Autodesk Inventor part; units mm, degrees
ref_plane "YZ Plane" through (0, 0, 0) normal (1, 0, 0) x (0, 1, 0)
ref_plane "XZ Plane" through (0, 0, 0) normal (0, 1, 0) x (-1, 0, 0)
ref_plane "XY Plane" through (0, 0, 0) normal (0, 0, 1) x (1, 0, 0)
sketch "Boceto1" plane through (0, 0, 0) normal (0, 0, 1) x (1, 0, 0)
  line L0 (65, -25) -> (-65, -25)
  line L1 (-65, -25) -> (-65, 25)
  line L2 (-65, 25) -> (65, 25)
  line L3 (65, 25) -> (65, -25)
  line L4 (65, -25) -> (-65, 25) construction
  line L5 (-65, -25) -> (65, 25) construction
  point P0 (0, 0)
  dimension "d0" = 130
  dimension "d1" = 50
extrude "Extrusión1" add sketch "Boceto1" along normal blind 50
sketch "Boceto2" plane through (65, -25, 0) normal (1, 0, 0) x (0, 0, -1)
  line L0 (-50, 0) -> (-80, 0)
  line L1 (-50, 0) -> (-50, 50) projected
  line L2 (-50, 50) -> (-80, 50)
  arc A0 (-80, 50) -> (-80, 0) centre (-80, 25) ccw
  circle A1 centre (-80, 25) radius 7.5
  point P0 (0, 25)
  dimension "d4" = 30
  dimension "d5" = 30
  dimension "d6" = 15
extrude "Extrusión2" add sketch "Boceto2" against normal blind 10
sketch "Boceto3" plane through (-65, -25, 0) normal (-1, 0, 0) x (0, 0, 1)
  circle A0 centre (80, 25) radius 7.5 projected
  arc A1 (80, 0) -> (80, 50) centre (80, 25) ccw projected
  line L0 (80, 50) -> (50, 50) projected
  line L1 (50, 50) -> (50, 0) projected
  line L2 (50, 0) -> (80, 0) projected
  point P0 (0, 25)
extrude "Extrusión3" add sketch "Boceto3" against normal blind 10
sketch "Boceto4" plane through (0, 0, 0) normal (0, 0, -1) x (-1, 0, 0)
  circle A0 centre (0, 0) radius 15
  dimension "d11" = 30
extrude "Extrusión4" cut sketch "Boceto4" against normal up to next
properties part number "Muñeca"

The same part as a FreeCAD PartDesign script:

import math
import FreeCAD as App
import Part
import Sketcher

doc = App.newDocument("Part")
body = doc.addObject("PartDesign::Body", "Body")

# Sketch on XY plane
sketch1 = body.newObject("Sketcher::SketchObject", "Sketch")
sketch1.AttachmentSupport = (doc.getObject("XY_Plane"), [""])
sketch1.MapMode = "FlatFace"
sketch1.addGeometry([
    Part.LineSegment(App.Vector(-65, -25, 0), App.Vector(65, -25, 0)),
    Part.LineSegment(App.Vector(65, -25, 0), App.Vector(65, 25, 0)),
    Part.LineSegment(App.Vector(65, 25, 0), App.Vector(-65, 25, 0)),
    Part.LineSegment(App.Vector(-65, 25, 0), App.Vector(-65, -25, 0)),
], False)
sketch1.addConstraint([
    Sketcher.Constraint("Coincident", 0, 2, 1, 1),
    Sketcher.Constraint("Coincident", 1, 2, 2, 1),
    Sketcher.Constraint("Coincident", 2, 2, 3, 1),
    Sketcher.Constraint("Coincident", 3, 2, 0, 1),
    Sketcher.Constraint("Horizontal", 0),
    Sketcher.Constraint("Vertical", 1),
    Sketcher.Constraint("Horizontal", 2),
    Sketcher.Constraint("Vertical", 3),
    Sketcher.Constraint("Symmetric", 0, 2, 2, 2, -1, 1),
    Sketcher.Constraint("DistanceX", 0, 1, 0, 2, 130.0),
    Sketcher.Constraint("DistanceY", 1, 1, 1, 2, 50.0),
])
pad1 = body.newObject("PartDesign::Pad", "Pad")
pad1.Profile = sketch1
pad1.Length = 50

# Sketch on YZ plane
sketch2 = body.newObject("Sketcher::SketchObject", "Sketch001")
sketch2.AttachmentSupport = (doc.getObject("YZ_Plane"), [""])
sketch2.MapMode = "FlatFace"
sketch2.AttachmentOffset = App.Placement(App.Vector(0, 0, 65), App.Rotation())
sketch2.addGeometry([
    Part.LineSegment(App.Vector(-25, 80, 0), App.Vector(-25, 50, 0)),  # 0
    Part.LineSegment(App.Vector(-25, 50, 0), App.Vector(25, 50, 0)),  # 1
    Part.LineSegment(App.Vector(25, 50, 0), App.Vector(25, 80, 0)),  # 2
    Part.ArcOfCircle(Part.Circle(App.Vector(0, 80, 0), App.Vector(0, 0, 1), 25), math.radians(0), math.radians(180)),  # 3
    Part.Circle(App.Vector(0, 80, 0), App.Vector(0, 0, 1), 8),  # 4
], False)
sketch2.addConstraint([
    Sketcher.Constraint("Coincident", 0, 2, 1, 1),
    Sketcher.Constraint("Coincident", 1, 2, 2, 1),
    Sketcher.Constraint("Tangent", 2, 2, 3, 1),
    Sketcher.Constraint("Tangent", 3, 2, 0, 1),
    Sketcher.Constraint("Vertical", 0),
    Sketcher.Constraint("Horizontal", 1),
    Sketcher.Constraint("Vertical", 2),
    Sketcher.Constraint("Coincident", 4, 3, 3, 3),
    Sketcher.Constraint("PointOnObject", 3, 3, -2),
    Sketcher.Constraint("Diameter", 4, 15.0),
    Sketcher.Constraint("DistanceY", 0, 2, 0, 1, 30.0),
    Sketcher.Constraint("Radius", 3, 25.0),
    Sketcher.Constraint("DistanceY", -1, 1, 3, 3, 80.0),
])
pad2 = body.newObject("PartDesign::Pad", "Pad001")
pad2.Profile = sketch2
pad2.Length = 10
pad2.Reversed = True

# Sketch on YZ plane
sketch3 = body.newObject("Sketcher::SketchObject", "Sketch002")
sketch3.AttachmentSupport = (doc.getObject("YZ_Plane"), [""])
sketch3.MapMode = "FlatFace"
sketch3.AttachmentOffset = App.Placement(App.Vector(0, 0, -65), App.Rotation())
sketch3.addGeometry([
    Part.LineSegment(App.Vector(-25, 50, 0), App.Vector(-25, 80, 0)),  # 0
    Part.ArcOfCircle(Part.Circle(App.Vector(0, 80, 0), App.Vector(0, 0, 1), 25), math.radians(0), math.radians(180)),  # 1
    Part.LineSegment(App.Vector(25, 80, 0), App.Vector(25, 50, 0)),  # 2
    Part.LineSegment(App.Vector(25, 50, 0), App.Vector(-25, 50, 0)),  # 3
    Part.Circle(App.Vector(0, 80, 0), App.Vector(0, 0, 1), 8),  # 4
], False)
sketch3.addConstraint([
    Sketcher.Constraint("Tangent", 0, 2, 1, 2),
    Sketcher.Constraint("Tangent", 1, 1, 2, 1),
    Sketcher.Constraint("Coincident", 2, 2, 3, 1),
    Sketcher.Constraint("Coincident", 3, 2, 0, 1),
    Sketcher.Constraint("Vertical", 0),
    Sketcher.Constraint("Vertical", 2),
    Sketcher.Constraint("Horizontal", 3),
    Sketcher.Constraint("Coincident", 4, 3, 1, 3),
    Sketcher.Constraint("PointOnObject", 1, 3, -2),
    Sketcher.Constraint("Diameter", 4, 15.0),
    Sketcher.Constraint("Radius", 1, 25.0),
    Sketcher.Constraint("DistanceY", 0, 1, 0, 2, 30.0),
    Sketcher.Constraint("DistanceY", -1, 1, 1, 3, 80.0),
])
pad3 = body.newObject("PartDesign::Pad", "Pad002")
pad3.Profile = sketch3
pad3.Length = 10

# Sketch on XY plane
sketch4 = body.newObject("Sketcher::SketchObject", "Sketch003")
sketch4.AttachmentSupport = (doc.getObject("XY_Plane"), [""])
sketch4.MapMode = "FlatFace"
sketch4.addGeometry(Part.Circle(App.Vector(0, 0, 0), App.Vector(0, 0, 1), 15), False)
sketch4.addConstraint([
    Sketcher.Constraint("Coincident", 0, 3, -1, 1),
    Sketcher.Constraint("Diameter", 0, 30.0),
])
pocket1 = body.newObject("PartDesign::Pocket", "Pocket")
pocket1.Profile = sketch4
pocket1.Type = "UpToFirst"
pocket1.Reversed = True

doc.recompute()
